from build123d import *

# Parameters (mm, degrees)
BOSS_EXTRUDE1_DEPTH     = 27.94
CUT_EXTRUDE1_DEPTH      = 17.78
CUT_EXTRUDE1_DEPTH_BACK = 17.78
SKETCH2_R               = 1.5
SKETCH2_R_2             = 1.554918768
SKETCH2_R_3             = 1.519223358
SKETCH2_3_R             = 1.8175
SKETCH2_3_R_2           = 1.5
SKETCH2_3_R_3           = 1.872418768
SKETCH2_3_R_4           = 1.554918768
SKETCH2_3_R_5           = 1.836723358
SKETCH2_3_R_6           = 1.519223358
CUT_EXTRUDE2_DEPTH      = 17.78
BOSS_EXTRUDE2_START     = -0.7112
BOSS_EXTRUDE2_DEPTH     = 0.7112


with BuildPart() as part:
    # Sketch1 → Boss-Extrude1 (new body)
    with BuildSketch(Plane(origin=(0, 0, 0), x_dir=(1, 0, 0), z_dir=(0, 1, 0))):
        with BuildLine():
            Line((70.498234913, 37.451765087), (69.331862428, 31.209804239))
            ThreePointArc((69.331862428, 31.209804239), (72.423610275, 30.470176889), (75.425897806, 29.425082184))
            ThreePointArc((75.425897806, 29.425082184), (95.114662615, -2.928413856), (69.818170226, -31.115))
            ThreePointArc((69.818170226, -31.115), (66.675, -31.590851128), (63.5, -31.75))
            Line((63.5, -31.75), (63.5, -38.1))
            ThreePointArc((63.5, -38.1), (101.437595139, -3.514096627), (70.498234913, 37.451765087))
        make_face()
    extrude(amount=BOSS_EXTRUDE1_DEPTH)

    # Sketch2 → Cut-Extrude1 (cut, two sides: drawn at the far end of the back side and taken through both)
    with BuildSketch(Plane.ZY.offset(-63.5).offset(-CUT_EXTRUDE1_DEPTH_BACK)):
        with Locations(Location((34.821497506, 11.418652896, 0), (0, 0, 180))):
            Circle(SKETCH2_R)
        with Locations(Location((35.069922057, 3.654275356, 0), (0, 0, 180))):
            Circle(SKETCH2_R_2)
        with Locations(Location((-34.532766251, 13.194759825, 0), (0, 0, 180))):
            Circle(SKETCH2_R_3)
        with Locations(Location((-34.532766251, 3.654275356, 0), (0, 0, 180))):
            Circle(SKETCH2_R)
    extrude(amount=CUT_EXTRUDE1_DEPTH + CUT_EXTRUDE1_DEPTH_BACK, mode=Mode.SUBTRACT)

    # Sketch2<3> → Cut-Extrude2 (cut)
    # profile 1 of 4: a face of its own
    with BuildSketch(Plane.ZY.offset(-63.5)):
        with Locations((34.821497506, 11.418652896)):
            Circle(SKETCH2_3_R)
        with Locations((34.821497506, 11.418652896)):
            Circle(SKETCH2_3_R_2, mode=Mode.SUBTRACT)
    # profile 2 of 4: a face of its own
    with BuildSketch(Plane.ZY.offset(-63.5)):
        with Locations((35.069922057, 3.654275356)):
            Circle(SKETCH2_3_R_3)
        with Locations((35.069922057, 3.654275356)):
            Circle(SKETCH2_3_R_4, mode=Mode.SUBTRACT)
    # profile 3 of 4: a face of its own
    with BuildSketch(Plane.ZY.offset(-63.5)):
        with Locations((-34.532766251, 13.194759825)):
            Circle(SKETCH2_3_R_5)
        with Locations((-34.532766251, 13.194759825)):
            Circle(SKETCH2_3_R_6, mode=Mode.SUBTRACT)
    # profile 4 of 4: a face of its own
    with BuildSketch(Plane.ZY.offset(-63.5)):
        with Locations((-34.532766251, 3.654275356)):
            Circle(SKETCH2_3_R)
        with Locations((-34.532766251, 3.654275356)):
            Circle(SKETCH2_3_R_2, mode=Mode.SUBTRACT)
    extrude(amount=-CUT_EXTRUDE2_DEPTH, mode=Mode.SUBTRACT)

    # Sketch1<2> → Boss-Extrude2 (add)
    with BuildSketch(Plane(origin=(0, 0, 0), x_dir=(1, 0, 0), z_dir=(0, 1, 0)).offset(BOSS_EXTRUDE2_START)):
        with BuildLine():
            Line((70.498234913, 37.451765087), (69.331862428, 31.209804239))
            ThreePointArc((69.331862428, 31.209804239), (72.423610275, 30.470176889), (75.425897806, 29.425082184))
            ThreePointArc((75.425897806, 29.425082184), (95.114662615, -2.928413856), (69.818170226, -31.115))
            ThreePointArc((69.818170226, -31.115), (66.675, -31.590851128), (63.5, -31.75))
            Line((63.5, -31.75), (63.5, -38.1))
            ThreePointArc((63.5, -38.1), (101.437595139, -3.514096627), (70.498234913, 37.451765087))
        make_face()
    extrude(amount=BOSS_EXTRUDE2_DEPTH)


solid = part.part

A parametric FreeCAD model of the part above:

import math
import FreeCAD as App
import Part
import Sketcher
Q = App.Units.Quantity

doc = App.newDocument("Part")
body = doc.addObject("PartDesign::Body", "Body")

# Sketch on XZ plane
sketch1 = doc.addObject("Sketcher::SketchObject", "Sketch")
body.addObject(sketch1)
sketch1.AttachmentSupport = (doc.XZ_Plane, [""])
sketch1.MapMode = "FlatFace"
sketch1.addGeometry([
    Part.LineSegment(App.Vector(70, -37, 0), App.Vector(69, -31, 0)),  # 0
    Part.ArcOfCircle(Part.Circle(App.Vector(63, 0, 0), App.Vector(0, 0, 1), 32), math.radians(-79.42), math.radians(-67.94)),  # 1
    Part.ArcOfCircle(Part.Circle(App.Vector(63, 0, 0), App.Vector(0, 0, 1), 32), math.radians(-68), math.radians(79)),  # 2
    Part.ArcOfCircle(Part.Circle(App.Vector(63, 0, 0), App.Vector(0, 0, 1), 32), math.radians(78.52), math.radians(90)),  # 3
    Part.LineSegment(App.Vector(64, 32, 0), App.Vector(64, 38, 0)),  # 4
    Part.ArcOfCircle(Part.Circle(App.Vector(64, 0, 0), App.Vector(0, 0, 1), 38), math.radians(-79), math.radians(90)),  # 5
], False)
sketch1.addConstraint([
    Sketcher.Constraint("Coincident", 0, 2, 1, 1),
    Sketcher.Constraint("Tangent", 1, 2, 2, 1),
    Sketcher.Constraint("Tangent", 2, 2, 3, 1),
    Sketcher.Constraint("Coincident", 3, 2, 4, 1),
    Sketcher.Constraint("Coincident", 4, 2, 5, 2),
    Sketcher.Constraint("Coincident", 5, 1, 0, 1),
    Sketcher.Constraint("Vertical", 4),
    Sketcher.Constraint("Coincident", 3, 3, 1, 3),
    Sketcher.Constraint("Coincident", 5, 3, 1, 3),
    Sketcher.Constraint("PointOnObject", 1, 3, -1),
    Sketcher.Constraint("Vertical", 5, 3, 3, 2),
    Sketcher.Constraint("Radius", 5, Q("1.5 in")),
    Sketcher.Constraint("Radius", 1, Q("1.25 in")),
    Sketcher.Constraint("DistanceX", -1, 1, 1, 3, Q("2.5 in")),
    Sketcher.Constraint("DistanceY", -1, 1, 2, 2, Q("1.225 in")),
    Sketcher.Constraint("DistanceY", 5, 1, 0, 2, 6.241961),
    Sketcher.Constraint("DistanceX", -1, 1, 0, 2, 69.331862),
    Sketcher.Constraint("DistanceX", -1, 1, 1, 2, 75.425898),
])
pad1 = doc.addObject("PartDesign::Pad", "Pad")
body.addObject(pad1)
pad1.Profile = sketch1
pad1.Length = Q("1.1 in")
pad1.Reversed = True

# Sketch on YZ plane
sketch2 = doc.addObject("Sketcher::SketchObject", "Sketch001")
body.addObject(sketch2)
sketch2.AttachmentSupport = (doc.YZ_Plane, [""])
sketch2.MapMode = "FlatFace"
sketch2.AttachmentOffset = App.Placement(App.Vector(0, 0, 2.5 * 25.4), App.Rotation())
sketch2.addGeometry([
    Part.Circle(App.Vector(11.4, 34.8, 0), App.Vector(0, 0, 1), 1.5),
    Part.Circle(App.Vector(3.7, 35.1, 0), App.Vector(0, 0, 1), 1.6),
    Part.Circle(App.Vector(13.2, -34.5, 0), App.Vector(0, 0, 1), 1.5),
    Part.Circle(App.Vector(3.7, -34.5, 0), App.Vector(0, 0, 1), 1.5),
], False)
sketch2.addConstraint([
    Sketcher.Constraint("Equal", 0, 3),
    Sketcher.Constraint("Horizontal", 2, 3, 3, 3),
    Sketcher.Constraint("Vertical", 1, 3, 3, 3),
    Sketcher.Constraint("Diameter", 0, 3.0),
    Sketcher.Constraint("Diameter", 1, 3.109838),
    Sketcher.Constraint("Diameter", 2, 3.038447),
    Sketcher.Constraint("DistanceX", -1, 1, 2, 3, 13.19476),
    Sketcher.Constraint("DistanceY", 2, 3, 1, 3, 69.602688),
    Sketcher.Constraint("DistanceX", -1, 1, 0, 3, 11.418653),
    Sketcher.Constraint("DistanceY", -1, 1, 0, 3, 34.821498),
    Sketcher.Constraint("DistanceX", -1, 1, 1, 3, 3.654275),
    Sketcher.Constraint("DistanceY", -1, 1, 1, 3, 35.069922),
])
pocket1 = doc.addObject("PartDesign::Pocket", "Pocket")
body.addObject(pocket1)
pocket1.Profile = sketch2
pocket1.Type = "TwoLengths"
pocket1.Length = Q("0.7 in")
pocket1.Length2 = Q("0.7 in")

# Sketch on YZ plane
sketch3 = doc.addObject("Sketcher::SketchObject", "Sketch002")
body.addObject(sketch3)
sketch3.AttachmentSupport = (doc.YZ_Plane, [""])
sketch3.MapMode = "FlatFace"
sketch3.AttachmentOffset = App.Placement(App.Vector(0, 0, 2.5 * 25.4), App.Rotation())
sketch3.addGeometry([
    Part.Circle(App.Vector(11.4, 34.8, 0), App.Vector(0, 0, 1), 1.8),  # 0
    Part.Circle(App.Vector(11.4, 34.8, 0), App.Vector(0, 0, 1), 1.5),  # 1
    Part.Circle(App.Vector(3.7, 35.1, 0), App.Vector(0, 0, 1), 1.9),  # 2
    Part.Circle(App.Vector(3.7, 35.1, 0), App.Vector(0, 0, 1), 1.6),  # 3
    Part.Circle(App.Vector(13.2, -34.5, 0), App.Vector(0, 0, 1), 1.8),  # 4
    Part.Circle(App.Vector(13.2, -34.5, 0), App.Vector(0, 0, 1), 1.5),  # 5
    Part.Circle(App.Vector(3.7, -34.5, 0), App.Vector(0, 0, 1), 1.8),  # 6
    Part.Circle(App.Vector(3.7, -34.5, 0), App.Vector(0, 0, 1), 1.5),  # 7
], False)
sketch3.addConstraint([
    Sketcher.Constraint("Coincident", 1, 3, 0, 3),
    Sketcher.Constraint("Coincident", 3, 3, 2, 3),
    Sketcher.Constraint("Coincident", 5, 3, 4, 3),
    Sketcher.Constraint("Coincident", 7, 3, 6, 3),
    Sketcher.Constraint("Equal", 0, 6),
    Sketcher.Constraint("Equal", 1, 7),
    Sketcher.Constraint("Horizontal", 5, 3, 6, 3),
    Sketcher.Constraint("Vertical", 3, 3, 6, 3),
    Sketcher.Constraint("Diameter", 0, 3.635),
    Sketcher.Constraint("Diameter", 1, 3.0),
    Sketcher.Constraint("Diameter", 2, 3.744838),
    Sketcher.Constraint("Diameter", 3, 3.109838),
    Sketcher.Constraint("Diameter", 4, 3.673447),
    Sketcher.Constraint("Diameter", 5, 3.038447),
    Sketcher.Constraint("DistanceX", -1, 1, 4, 3, 13.19476),
    Sketcher.Constraint("DistanceY", 4, 3, 2, 3, 69.602688),
    Sketcher.Constraint("DistanceX", -1, 1, 0, 3, 11.418653),
    Sketcher.Constraint("DistanceY", -1, 1, 0, 3, 34.821498),
    Sketcher.Constraint("DistanceX", -1, 1, 2, 3, 3.654275),
    Sketcher.Constraint("DistanceY", -1, 1, 2, 3, 35.069922),
])
pocket2 = doc.addObject("PartDesign::Pocket", "Pocket001")
body.addObject(pocket2)
pocket2.Profile = sketch3
pocket2.Length = Q("0.7 in")
pocket2.Reversed = True

# Sketch on XZ plane
sketch4 = doc.addObject("Sketcher::SketchObject", "Sketch003")
body.addObject(sketch4)
sketch4.AttachmentSupport = (doc.XZ_Plane, [""])
sketch4.MapMode = "FlatFace"
sketch4.AttachmentOffset = App.Placement(App.Vector(0, 0, 0.028 * 25.4), App.Rotation())
sketch4.addGeometry([
    Part.LineSegment(App.Vector(70, -37, 0), App.Vector(69, -31, 0)),  # 0
    Part.ArcOfCircle(Part.Circle(App.Vector(63, 0, 0), App.Vector(0, 0, 1), 32), math.radians(-79.42), math.radians(-67.94)),  # 1
    Part.ArcOfCircle(Part.Circle(App.Vector(63, 0, 0), App.Vector(0, 0, 1), 32), math.radians(-68), math.radians(79)),  # 2
    Part.ArcOfCircle(Part.Circle(App.Vector(63, 0, 0), App.Vector(0, 0, 1), 32), math.radians(78.52), math.radians(90)),  # 3
    Part.LineSegment(App.Vector(64, 32, 0), App.Vector(64, 38, 0)),  # 4
    Part.ArcOfCircle(Part.Circle(App.Vector(64, 0, 0), App.Vector(0, 0, 1), 38), math.radians(-79), math.radians(90)),  # 5
], False)
sketch4.addConstraint([
    Sketcher.Constraint("Coincident", 0, 2, 1, 1),
    Sketcher.Constraint("Tangent", 1, 2, 2, 1),
    Sketcher.Constraint("Tangent", 2, 2, 3, 1),
    Sketcher.Constraint("Coincident", 3, 2, 4, 1),
    Sketcher.Constraint("Coincident", 4, 2, 5, 2),
    Sketcher.Constraint("Coincident", 5, 1, 0, 1),
    Sketcher.Constraint("Vertical", 4),
    Sketcher.Constraint("Coincident", 3, 3, 1, 3),
    Sketcher.Constraint("Coincident", 5, 3, 1, 3),
    Sketcher.Constraint("PointOnObject", 1, 3, -1),
    Sketcher.Constraint("Vertical", 5, 3, 3, 2),
    Sketcher.Constraint("Radius", 5, Q("1.5 in")),
    Sketcher.Constraint("Radius", 1, Q("1.25 in")),
    Sketcher.Constraint("DistanceX", -1, 1, 1, 3, Q("2.5 in")),
    Sketcher.Constraint("DistanceY", -1, 1, 2, 2, Q("1.225 in")),
    Sketcher.Constraint("DistanceY", 5, 1, 0, 2, 6.241961),
    Sketcher.Constraint("DistanceX", -1, 1, 0, 2, 69.331862),
    Sketcher.Constraint("DistanceX", -1, 1, 1, 2, 75.425898),
])
pad2 = doc.addObject("PartDesign::Pad", "Pad001")
body.addObject(pad2)
pad2.Profile = sketch4
pad2.Length = Q("0.028 in")
pad2.Reversed = True

doc.recompute()
